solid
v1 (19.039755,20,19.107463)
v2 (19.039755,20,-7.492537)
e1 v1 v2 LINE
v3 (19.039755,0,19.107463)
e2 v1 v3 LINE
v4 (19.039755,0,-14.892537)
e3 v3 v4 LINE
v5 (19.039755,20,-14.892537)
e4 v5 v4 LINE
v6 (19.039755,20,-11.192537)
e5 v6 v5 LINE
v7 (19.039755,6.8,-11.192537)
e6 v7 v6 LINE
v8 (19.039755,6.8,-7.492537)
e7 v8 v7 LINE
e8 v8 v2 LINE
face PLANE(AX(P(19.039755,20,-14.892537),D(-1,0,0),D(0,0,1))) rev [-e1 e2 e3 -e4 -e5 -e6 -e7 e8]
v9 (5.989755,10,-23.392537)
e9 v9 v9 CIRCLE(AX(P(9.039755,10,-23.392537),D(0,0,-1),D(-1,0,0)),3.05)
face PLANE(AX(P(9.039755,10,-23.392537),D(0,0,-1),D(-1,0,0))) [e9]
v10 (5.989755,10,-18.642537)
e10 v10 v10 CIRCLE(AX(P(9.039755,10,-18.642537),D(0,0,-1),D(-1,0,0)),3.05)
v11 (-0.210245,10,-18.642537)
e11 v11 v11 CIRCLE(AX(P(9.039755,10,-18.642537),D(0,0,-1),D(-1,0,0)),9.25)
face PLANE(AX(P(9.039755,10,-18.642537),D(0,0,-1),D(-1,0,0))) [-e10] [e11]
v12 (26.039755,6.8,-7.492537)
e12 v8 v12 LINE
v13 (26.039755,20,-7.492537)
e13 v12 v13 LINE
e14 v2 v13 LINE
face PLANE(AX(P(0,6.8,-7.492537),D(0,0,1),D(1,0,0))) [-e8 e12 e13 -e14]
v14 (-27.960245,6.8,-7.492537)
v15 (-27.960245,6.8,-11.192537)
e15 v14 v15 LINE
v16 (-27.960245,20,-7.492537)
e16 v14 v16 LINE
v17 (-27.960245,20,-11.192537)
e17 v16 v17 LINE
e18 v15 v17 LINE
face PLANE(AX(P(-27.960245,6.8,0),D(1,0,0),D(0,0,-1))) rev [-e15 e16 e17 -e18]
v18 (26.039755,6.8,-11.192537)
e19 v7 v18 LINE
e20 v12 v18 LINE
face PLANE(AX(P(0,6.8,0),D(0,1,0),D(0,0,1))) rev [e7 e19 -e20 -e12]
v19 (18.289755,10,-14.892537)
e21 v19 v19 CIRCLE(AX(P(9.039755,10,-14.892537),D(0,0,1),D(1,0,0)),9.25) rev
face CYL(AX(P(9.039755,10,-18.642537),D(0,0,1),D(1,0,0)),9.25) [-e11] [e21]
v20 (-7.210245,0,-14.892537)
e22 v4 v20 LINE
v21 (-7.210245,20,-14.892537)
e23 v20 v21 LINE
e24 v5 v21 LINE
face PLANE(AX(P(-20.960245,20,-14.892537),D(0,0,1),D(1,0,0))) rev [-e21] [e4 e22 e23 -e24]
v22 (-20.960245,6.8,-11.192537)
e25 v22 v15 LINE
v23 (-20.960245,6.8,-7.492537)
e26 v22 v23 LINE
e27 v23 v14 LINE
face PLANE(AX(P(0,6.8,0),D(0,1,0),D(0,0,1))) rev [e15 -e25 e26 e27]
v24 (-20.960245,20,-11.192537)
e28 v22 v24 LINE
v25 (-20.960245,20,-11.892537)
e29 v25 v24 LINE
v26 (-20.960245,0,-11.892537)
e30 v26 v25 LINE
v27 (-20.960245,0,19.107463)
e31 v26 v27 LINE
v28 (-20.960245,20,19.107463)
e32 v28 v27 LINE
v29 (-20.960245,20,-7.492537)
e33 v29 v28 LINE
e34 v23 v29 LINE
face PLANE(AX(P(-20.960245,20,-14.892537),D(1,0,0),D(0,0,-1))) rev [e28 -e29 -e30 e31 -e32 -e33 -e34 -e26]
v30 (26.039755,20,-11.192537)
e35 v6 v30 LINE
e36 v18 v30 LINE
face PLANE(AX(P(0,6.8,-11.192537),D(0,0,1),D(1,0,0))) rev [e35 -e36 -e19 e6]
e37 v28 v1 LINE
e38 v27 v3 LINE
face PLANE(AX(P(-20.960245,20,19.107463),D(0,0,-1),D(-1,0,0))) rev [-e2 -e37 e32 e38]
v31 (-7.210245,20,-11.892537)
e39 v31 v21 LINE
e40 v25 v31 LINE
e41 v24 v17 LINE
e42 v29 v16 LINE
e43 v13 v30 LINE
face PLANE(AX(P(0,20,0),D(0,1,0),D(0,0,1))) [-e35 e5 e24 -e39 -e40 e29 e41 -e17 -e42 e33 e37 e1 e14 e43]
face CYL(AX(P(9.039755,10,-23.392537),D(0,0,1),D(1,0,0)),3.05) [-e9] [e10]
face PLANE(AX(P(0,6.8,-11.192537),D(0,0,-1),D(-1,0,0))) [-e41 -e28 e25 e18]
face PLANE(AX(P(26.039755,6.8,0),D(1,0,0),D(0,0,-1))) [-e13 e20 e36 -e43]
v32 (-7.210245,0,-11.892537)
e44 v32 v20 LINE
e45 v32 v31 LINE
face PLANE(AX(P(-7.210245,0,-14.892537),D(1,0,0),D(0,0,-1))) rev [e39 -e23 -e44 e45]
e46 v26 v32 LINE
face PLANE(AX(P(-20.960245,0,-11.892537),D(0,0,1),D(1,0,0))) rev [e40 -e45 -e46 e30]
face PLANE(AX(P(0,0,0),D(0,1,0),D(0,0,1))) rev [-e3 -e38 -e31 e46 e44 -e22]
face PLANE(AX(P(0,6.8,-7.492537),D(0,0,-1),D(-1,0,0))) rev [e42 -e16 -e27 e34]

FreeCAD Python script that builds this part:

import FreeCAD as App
import Part
import Sketcher


def add_polygon(sketch, points):
    """Adds a closed chain of lines whose ends are joined by coincident constraints."""
    first, n = sketch.GeometryCount, len(points)
    for a, b in zip(points, points[1:] + points[:1]):
        sketch.addGeometry(Part.LineSegment(App.Vector(*a, 0), App.Vector(*b, 0)), False)
    for i in range(n):
        sketch.addConstraint(Sketcher.Constraint("Coincident", first + i, 2, first + (i + 1) % n, 1))

doc = App.newDocument("Part")
body = doc.addObject("PartDesign::Body", "Body")

sketch1 = body.newObject("Sketcher::SketchObject", "Sketch")
sketch1.AttachmentSupport = (doc.getObject("XZ_Plane"), [""])
sketch1.MapMode = "FlatFace"
add_polygon(sketch1, [(-21, -15), (-21, 19), (19, 19), (19, -15)])
sketch1.addConstraint(Sketcher.Constraint("Vertical", 0))
sketch1.addConstraint(Sketcher.Constraint("Horizontal", 1))
sketch1.addConstraint(Sketcher.Constraint("Vertical", 2))
sketch1.addConstraint(Sketcher.Constraint("Horizontal", 3))
sketch1.addConstraint(Sketcher.Constraint("DistanceX", 1, 1, 1, 2, 40.0))
sketch1.addConstraint(Sketcher.Constraint("DistanceY", 0, 1, 0, 2, 34.0))
sketch1.addConstraint(Sketcher.Constraint("DistanceX", 0, 2, -1, 1, 20.960245))
sketch1.addConstraint(Sketcher.Constraint("DistanceY", -1, 1, 0, 2, 19.107463))
pad1 = body.newObject("PartDesign::Pad", "Pad")
pad1.Profile = sketch1
pad1.Length = 20
pad1.Reversed = True

sketch2 = body.newObject("Sketcher::SketchObject", "Sketch001")
sketch2.AttachmentSupport = (doc.getObject("XZ_Plane"), [""])
sketch2.MapMode = "FlatFace"
sketch2.AttachmentOffset = App.Placement(App.Vector(0, 0, -20), App.Rotation())
add_polygon(sketch2, [(-21, -14.9), (-21, -11.9), (-7.2, -11.9), (-7.2, -14.9)])
sketch2.addConstraint(Sketcher.Constraint("Vertical", 0))
sketch2.addConstraint(Sketcher.Constraint("Horizontal", 1))
sketch2.addConstraint(Sketcher.Constraint("Vertical", 2))
sketch2.addConstraint(Sketcher.Constraint("Horizontal", 3))
sketch2.addConstraint(Sketcher.Constraint("DistanceY", 0, 1, 0, 2, 3.0))
sketch2.addConstraint(Sketcher.Constraint("DistanceX", 1, 1, 1, 2, 13.75))
sketch2.addConstraint(Sketcher.Constraint("DistanceX", 0, 2, -1, 1, 20.960245))
sketch2.addConstraint(Sketcher.Constraint("DistanceY", 0, 2, -1, 1, 11.892537))
pocket1 = body.newObject("PartDesign::Pocket", "Pocket")
pocket1.Profile = sketch2
pocket1.Type = "ThroughAll"
pocket1.Reversed = True

sketch3 = body.newObject("Sketcher::SketchObject", "Sketch002")
sketch3.AttachmentSupport = (doc.getObject("XY_Plane"), [""])
sketch3.MapMode = "FlatFace"
sketch3.AttachmentOffset = App.Placement(App.Vector(0, 0, -14.892537), App.Rotation())
sketch3.addGeometry(Part.Circle(App.Vector(9, 10, 0), App.Vector(0, 0, 1), 9.2), False)
sketch3.addGeometry(Part.Circle(App.Vector(9, 10, 0), App.Vector(0, 0, 1), 3), False)
sketch3.addConstraint(Sketcher.Constraint("Coincident", 1, 3, 0, 3))
sketch3.addConstraint(Sketcher.Constraint("Diameter", 0, 18.5))
sketch3.addConstraint(Sketcher.Constraint("Diameter", 1, 6.1))
sketch3.addConstraint(Sketcher.Constraint("DistanceY", -1, 1, 0, 3, 10.0))
sketch3.addConstraint(Sketcher.Constraint("DistanceX", -1, 1, 0, 3, 9.039755))
pad2 = body.newObject("PartDesign::Pad", "Pad001")
pad2.Profile = sketch3
pad2.Length = 3.75
pad2.Reversed = True

sketch4 = body.newObject("Sketcher::SketchObject", "Sketch003")
sketch4.AttachmentSupport = (doc.getObject("XZ_Plane"), [""])
sketch4.MapMode = "FlatFace"
sketch4.AttachmentOffset = App.Placement(App.Vector(0, 0, -20), App.Rotation())
add_polygon(sketch4, [(-28, -11.2), (-28, -7.5), (-21, -7.5), (-21, -11.2)])
add_polygon(sketch4, [(19, -11.2), (19, -7.5), (26, -7.5), (26, -11.2)])
sketch4.addConstraint(Sketcher.Constraint("Vertical", 0))
sketch4.addConstraint(Sketcher.Constraint("Horizontal", 1))
sketch4.addConstraint(Sketcher.Constraint("Vertical", 2))
sketch4.addConstraint(Sketcher.Constraint("Horizontal", 3))
sketch4.addConstraint(Sketcher.Constraint("Vertical", 4))
sketch4.addConstraint(Sketcher.Constraint("Horizontal", 5))
sketch4.addConstraint(Sketcher.Constraint("Vertical", 6))
sketch4.addConstraint(Sketcher.Constraint("Horizontal", 7))
sketch4.addConstraint(Sketcher.Constraint("Horizontal", 1, 2, 4, 2))
sketch4.addConstraint(Sketcher.Constraint("Horizontal", 3, 2, 6, 2))
sketch4.addConstraint(Sketcher.Constraint("Equal", 3, 5))
sketch4.addConstraint(Sketcher.Constraint("DistanceX", 1, 1, 1, 2, 7.0))
sketch4.addConstraint(Sketcher.Constraint("DistanceY", 0, 1, 0, 2, 3.7))
sketch4.addConstraint(Sketcher.Constraint("DistanceX", 1, 2, 4, 2, 40.0))
sketch4.addConstraint(Sketcher.Constraint("DistanceX", 0, 2, -1, 1, 27.960245))
sketch4.addConstraint(Sketcher.Constraint("DistanceY", 0, 2, -1, 1, 7.492537))
pad3 = body.newObject("PartDesign::Pad", "Pad002")
pad3.Profile = sketch4
pad3.Length = 13.2

sketch5 = body.newObject("Sketcher::SketchObject", "Sketch004")
sketch5.AttachmentSupport = (doc.getObject("XY_Plane"), [""])
sketch5.MapMode = "FlatFace"
sketch5.AttachmentOffset = App.Placement(App.Vector(0, 0, -14.892537), App.Rotation())
sketch5.addGeometry(Part.Circle(App.Vector(9, 10, 0), App.Vector(0, 0, 1), 3), False)
sketch5.addConstraint(Sketcher.Constraint("Diameter", 0, 6.1))
sketch5.addConstraint(Sketcher.Constraint("DistanceY", -1, 1, 0, 3, 10.0))
sketch5.addConstraint(Sketcher.Constraint("DistanceX", -1, 1, 0, 3, 9.039755))
pad4 = body.newObject("PartDesign::Pad", "Pad003")
pad4.Profile = sketch5
pad4.Length = 8.5
pad4.Reversed = True

doc.recompute()
